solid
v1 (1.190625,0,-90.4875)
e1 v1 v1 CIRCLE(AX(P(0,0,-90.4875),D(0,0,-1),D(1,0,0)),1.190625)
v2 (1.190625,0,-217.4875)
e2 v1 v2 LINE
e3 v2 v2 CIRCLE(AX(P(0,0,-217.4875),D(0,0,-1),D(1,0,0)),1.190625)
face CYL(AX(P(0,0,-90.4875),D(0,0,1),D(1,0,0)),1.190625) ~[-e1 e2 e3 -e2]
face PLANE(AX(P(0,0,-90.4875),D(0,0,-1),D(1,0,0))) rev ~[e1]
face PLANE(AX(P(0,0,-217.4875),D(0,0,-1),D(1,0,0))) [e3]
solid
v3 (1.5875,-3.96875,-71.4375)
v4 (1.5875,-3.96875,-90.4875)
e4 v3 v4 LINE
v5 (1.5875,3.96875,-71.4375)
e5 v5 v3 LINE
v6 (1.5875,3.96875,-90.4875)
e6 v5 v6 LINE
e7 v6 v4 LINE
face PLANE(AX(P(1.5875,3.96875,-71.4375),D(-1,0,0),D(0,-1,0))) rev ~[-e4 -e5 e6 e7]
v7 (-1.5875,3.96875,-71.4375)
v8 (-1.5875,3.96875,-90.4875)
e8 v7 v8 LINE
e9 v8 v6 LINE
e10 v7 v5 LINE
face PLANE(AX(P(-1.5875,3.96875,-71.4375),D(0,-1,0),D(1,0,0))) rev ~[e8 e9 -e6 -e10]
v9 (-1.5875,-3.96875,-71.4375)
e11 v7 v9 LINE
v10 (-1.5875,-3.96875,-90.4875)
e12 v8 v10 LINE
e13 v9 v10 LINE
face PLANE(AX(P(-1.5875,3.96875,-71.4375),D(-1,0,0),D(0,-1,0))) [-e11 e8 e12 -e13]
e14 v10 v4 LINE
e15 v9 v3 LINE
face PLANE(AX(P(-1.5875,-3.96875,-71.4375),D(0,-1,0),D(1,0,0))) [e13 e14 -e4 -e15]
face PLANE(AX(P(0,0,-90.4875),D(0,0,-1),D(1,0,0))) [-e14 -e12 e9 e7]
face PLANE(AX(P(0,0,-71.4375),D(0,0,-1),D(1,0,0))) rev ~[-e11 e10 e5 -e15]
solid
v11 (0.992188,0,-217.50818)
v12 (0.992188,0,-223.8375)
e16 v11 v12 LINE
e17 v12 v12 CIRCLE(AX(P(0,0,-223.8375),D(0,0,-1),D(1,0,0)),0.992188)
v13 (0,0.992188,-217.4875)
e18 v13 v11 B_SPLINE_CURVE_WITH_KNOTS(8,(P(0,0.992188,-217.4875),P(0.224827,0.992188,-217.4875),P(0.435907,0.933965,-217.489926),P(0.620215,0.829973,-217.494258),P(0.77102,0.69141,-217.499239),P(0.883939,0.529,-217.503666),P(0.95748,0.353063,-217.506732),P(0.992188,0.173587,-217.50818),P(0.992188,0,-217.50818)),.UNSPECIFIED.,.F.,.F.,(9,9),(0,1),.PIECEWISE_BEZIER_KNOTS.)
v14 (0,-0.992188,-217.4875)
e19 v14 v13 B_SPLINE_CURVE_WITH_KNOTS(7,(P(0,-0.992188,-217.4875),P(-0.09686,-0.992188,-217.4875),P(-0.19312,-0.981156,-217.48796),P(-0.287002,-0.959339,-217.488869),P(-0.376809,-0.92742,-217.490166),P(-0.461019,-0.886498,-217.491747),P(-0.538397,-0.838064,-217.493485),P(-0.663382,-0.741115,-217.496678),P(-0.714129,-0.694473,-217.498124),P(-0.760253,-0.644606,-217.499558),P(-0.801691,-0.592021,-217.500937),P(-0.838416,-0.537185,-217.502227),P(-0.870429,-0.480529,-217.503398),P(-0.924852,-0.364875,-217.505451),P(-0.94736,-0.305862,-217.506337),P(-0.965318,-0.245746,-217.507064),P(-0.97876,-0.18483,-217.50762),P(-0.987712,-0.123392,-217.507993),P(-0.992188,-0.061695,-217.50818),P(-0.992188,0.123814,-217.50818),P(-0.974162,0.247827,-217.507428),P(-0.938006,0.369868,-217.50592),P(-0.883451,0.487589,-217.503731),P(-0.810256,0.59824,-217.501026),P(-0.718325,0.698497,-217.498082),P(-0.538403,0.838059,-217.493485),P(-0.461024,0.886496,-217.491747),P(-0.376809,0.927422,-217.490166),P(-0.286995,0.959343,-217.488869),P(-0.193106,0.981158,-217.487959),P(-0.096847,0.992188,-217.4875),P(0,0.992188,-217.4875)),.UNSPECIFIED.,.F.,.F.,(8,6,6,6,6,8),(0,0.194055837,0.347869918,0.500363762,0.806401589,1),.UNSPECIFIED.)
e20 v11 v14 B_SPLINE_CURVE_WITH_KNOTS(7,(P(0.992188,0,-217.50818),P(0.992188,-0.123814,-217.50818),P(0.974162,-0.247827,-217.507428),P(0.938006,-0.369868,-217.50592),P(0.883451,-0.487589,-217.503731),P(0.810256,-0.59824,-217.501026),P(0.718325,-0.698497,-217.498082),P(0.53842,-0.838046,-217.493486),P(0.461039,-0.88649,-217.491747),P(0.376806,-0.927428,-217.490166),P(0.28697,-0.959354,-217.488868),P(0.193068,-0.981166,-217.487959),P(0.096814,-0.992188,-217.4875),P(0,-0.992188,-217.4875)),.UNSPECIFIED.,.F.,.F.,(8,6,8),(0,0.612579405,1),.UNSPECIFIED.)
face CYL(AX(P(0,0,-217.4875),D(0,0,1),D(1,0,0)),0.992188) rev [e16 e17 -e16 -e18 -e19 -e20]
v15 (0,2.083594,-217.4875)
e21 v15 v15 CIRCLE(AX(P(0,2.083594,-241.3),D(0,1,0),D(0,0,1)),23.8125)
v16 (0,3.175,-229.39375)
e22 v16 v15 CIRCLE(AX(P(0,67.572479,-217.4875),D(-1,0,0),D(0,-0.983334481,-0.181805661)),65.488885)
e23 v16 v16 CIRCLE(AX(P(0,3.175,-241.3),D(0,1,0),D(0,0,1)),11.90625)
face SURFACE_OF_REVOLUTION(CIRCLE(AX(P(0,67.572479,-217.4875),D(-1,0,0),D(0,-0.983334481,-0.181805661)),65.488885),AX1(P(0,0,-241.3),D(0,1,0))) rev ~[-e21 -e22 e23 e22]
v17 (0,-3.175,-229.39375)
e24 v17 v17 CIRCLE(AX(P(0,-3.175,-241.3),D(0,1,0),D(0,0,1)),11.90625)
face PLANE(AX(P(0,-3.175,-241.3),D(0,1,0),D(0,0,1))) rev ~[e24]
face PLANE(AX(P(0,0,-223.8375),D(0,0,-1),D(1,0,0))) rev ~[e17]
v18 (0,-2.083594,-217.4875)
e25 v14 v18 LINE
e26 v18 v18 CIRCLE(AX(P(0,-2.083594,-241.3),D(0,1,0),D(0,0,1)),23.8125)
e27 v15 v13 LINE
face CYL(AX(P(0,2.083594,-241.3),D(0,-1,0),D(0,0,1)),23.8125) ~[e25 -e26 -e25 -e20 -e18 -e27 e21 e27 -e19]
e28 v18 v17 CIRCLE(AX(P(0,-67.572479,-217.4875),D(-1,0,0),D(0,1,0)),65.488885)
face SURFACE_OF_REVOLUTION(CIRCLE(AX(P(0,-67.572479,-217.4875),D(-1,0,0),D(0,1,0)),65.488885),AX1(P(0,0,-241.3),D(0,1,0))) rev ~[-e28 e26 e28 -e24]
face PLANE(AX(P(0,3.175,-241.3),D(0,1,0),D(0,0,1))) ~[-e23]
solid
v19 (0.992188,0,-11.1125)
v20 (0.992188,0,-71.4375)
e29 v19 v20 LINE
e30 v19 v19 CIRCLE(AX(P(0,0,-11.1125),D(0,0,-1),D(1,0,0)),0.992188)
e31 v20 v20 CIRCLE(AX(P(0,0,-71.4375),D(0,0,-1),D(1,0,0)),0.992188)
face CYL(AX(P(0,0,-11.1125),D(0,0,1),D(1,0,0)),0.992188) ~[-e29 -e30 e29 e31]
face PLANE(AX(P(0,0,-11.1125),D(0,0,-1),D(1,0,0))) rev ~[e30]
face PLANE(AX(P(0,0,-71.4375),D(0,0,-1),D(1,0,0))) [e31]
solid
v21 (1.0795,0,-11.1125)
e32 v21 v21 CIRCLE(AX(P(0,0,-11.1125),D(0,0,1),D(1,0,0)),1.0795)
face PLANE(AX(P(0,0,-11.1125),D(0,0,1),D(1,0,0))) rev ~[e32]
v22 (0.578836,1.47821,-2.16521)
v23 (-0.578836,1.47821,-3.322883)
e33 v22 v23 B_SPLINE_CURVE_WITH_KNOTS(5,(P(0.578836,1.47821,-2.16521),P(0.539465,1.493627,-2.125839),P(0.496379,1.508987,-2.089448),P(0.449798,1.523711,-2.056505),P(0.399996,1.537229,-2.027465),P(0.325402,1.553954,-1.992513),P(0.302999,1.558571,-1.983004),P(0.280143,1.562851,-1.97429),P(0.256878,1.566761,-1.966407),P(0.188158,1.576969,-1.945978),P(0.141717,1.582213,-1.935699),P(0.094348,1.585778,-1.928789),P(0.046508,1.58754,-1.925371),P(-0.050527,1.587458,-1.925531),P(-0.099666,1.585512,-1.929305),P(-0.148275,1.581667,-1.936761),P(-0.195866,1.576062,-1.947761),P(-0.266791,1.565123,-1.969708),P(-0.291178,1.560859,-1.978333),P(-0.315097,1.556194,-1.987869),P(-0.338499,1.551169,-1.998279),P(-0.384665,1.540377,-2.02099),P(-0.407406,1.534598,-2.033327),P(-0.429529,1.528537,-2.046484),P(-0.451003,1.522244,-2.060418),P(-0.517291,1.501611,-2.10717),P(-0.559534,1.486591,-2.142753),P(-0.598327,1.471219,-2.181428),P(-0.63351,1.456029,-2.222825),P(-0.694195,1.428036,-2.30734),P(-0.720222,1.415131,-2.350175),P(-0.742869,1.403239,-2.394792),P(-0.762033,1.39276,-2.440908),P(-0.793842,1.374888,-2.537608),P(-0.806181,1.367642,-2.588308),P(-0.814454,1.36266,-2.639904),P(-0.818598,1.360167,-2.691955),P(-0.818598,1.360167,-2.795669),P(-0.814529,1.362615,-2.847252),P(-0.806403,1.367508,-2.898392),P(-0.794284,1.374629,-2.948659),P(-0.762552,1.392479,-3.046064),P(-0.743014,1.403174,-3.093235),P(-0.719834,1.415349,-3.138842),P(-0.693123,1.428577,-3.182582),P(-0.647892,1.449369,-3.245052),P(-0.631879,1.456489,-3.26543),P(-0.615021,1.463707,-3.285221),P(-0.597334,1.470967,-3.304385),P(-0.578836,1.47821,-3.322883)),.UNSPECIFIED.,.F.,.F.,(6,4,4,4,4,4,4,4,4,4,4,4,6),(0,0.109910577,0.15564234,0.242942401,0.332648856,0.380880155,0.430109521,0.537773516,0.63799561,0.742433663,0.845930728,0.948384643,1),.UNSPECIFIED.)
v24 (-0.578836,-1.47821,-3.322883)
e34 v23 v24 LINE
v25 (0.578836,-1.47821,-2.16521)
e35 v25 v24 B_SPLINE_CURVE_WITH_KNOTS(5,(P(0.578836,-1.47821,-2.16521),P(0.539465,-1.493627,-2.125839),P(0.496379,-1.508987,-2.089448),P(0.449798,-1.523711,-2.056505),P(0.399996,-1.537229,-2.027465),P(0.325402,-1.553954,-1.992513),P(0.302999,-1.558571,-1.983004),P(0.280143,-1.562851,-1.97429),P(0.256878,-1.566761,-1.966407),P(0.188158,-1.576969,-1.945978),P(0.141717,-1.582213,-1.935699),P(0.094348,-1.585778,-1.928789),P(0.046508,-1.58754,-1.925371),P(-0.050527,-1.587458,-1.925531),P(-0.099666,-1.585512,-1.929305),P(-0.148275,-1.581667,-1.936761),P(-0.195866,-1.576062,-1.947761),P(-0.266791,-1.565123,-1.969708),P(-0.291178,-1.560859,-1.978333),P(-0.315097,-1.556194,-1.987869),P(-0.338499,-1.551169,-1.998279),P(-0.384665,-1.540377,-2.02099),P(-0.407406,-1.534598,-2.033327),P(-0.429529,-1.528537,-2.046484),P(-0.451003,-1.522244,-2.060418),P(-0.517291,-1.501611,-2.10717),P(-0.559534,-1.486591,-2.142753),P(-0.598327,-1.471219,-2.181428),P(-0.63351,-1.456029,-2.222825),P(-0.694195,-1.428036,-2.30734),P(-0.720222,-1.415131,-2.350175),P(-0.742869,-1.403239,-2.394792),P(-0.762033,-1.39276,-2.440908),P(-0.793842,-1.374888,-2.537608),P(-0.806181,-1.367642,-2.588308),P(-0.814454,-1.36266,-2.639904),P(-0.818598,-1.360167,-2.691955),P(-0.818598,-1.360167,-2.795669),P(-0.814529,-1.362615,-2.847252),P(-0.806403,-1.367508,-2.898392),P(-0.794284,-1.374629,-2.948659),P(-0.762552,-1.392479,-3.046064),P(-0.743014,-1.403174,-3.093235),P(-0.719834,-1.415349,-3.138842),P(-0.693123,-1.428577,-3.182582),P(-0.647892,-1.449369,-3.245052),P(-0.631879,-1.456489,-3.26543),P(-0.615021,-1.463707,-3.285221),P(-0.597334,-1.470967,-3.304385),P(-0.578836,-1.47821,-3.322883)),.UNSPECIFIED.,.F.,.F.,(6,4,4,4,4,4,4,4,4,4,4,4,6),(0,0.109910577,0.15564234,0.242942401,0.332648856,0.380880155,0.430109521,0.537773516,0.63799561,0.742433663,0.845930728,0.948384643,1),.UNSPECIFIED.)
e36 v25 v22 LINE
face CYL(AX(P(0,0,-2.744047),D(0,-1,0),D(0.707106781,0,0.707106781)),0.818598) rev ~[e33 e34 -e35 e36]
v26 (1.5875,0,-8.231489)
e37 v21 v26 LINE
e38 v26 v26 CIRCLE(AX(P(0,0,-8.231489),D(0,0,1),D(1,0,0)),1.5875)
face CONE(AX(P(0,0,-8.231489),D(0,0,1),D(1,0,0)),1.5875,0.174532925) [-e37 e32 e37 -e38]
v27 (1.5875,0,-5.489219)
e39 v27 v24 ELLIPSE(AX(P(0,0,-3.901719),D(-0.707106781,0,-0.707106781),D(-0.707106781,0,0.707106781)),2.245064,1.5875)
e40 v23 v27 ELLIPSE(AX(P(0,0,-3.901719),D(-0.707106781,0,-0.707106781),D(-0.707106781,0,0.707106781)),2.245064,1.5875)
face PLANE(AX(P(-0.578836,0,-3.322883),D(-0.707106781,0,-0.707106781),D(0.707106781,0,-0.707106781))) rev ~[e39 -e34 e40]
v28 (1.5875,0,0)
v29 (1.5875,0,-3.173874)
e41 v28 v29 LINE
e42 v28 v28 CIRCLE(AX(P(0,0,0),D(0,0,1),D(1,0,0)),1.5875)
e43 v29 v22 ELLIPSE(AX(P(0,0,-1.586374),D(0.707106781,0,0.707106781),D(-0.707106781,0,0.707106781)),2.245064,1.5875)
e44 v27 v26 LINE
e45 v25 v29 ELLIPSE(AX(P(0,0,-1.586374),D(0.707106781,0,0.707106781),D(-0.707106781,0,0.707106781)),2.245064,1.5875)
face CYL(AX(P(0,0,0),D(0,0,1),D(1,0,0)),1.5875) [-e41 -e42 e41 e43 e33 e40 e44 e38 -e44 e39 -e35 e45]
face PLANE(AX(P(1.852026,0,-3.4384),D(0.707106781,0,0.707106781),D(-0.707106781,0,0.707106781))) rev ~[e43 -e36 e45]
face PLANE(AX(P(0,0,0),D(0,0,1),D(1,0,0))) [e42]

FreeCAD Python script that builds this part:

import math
import FreeCAD as App
import Part
import Sketcher
Q = App.Units.Quantity


def edges_at(feature, points):
    """Names of the edges that pass closest to the given points."""
    edges = feature.Shape.Edges
    near = lambda p: min(range(len(edges)), key=lambda i: edges[i].distToShape(Part.Vertex(*p))[0])
    return sorted({f"Edge{near(p) + 1}" for p in points})


def add_polygon(sketch, points):
    """Adds a closed chain of lines whose ends are joined by coincident constraints."""
    first, n = sketch.GeometryCount, len(points)
    for a, b in zip(points, points[1:] + points[:1]):
        sketch.addGeometry(Part.LineSegment(App.Vector(*a, 0), App.Vector(*b, 0)), False)
    for i in range(n):
        sketch.addConstraint(Sketcher.Constraint("Coincident", first + i, 2, first + (i + 1) % n, 1))

doc = App.newDocument("Part")
params = doc.addObject("Spreadsheet::Sheet", "Params")
for row, (alias, value) in enumerate([
    ("sketch1_diameter", "0.125 in"),
    ("pad1_length", "0.4375 in"),
    ("chamfer_size", "0.02 in"),
    ("chamfer_size2", "2.881011 mm"),
    ("pocket1_length", "0.25 in"),
    ("sketch3_diameter", "0.078125 in"),
    ("pad2_length", "2.375 in"),
    ("sketch4_width", "0.125 in"),
    ("sketch4_height", "0.3125 in"),
    ("pad3_length", "0.75 in"),
    ("sketch5_diameter", "0.09375 in"),
    ("pad4_length", "5 in"),
    ("sketch6_width", "0.25 in"),
    ("sketch6_height", "0.46875 in"),
    ("revolution_angle", "360 deg"),
    ("sketch7_diameter", "0.078125 in"),
    ("pocket2_length", "0.25 in"),
], start=1):
    params.set(f"A{row}", alias)
    params.set(f"B{row}", "=" + value)
    params.setAlias(f"B{row}", alias)

body = doc.addObject("PartDesign::Body", "Body")

# Sketch on XY plane
sketch1 = body.newObject("Sketcher::SketchObject", "Sketch")
sketch1.AttachmentSupport = (doc.getObject("XY_Plane"), [""])
sketch1.MapMode = "FlatFace"
sketch1.addGeometry(Part.Circle(App.Vector(0, 0, 0), App.Vector(0, 0, 1), 1.6), False)
sketch1.addConstraint([
    Sketcher.Constraint("Coincident", 0, 3, -1, 1),
    Sketcher.Constraint("Diameter", 0, Q("0.125 in")),
])
sketch1.setExpression("Constraints[1]", "Params.sketch1_diameter")
pad1 = body.newObject("PartDesign::Pad", "Pad")
pad1.Profile = sketch1
pad1.setExpression("Length", "Params.pad1_length")
pad1.Reversed = True
doc.recompute()

chamfer = body.newObject("PartDesign::Chamfer", "Chamfer")
chamfer.Base = (pad1, edges_at(pad1, [(-1.587, 0, -11.113)]))
chamfer.ChamferType = "Two distances"
chamfer.setExpression("Size", "Params.chamfer_size")
chamfer.setExpression("Size2", "Params.chamfer_size2")
chamfer.FlipDirection = True

# Sketch on XZ plane
sketch2 = body.newObject("Sketcher::SketchObject", "Sketch001")
sketch2.AttachmentSupport = (doc.getObject("XZ_Plane"), [""])
sketch2.MapMode = "FlatFace"
sketch2.addGeometry([
    Part.ArcOfCircle(Part.Circle(App.Vector(0, -2.7, 0), App.Vector(0, 0, 1), 0.8), math.radians(45), math.radians(225)),
    Part.LineSegment(App.Vector(-0.6, -3.3, 0), App.Vector(1.9, -5.8, 0)),
    Part.LineSegment(App.Vector(1.9, -5.8, 0), App.Vector(1.9, -3.4, 0)),
    Part.LineSegment(App.Vector(1.9, -3.4, 0), App.Vector(0.6, -2.2, 0)),
], False)
sketch2.addConstraint([
    Sketcher.Constraint("Tangent", 0, 2, 1, 1),
    Sketcher.Constraint("Coincident", 1, 2, 2, 1),
    Sketcher.Constraint("Coincident", 2, 2, 3, 1),
    Sketcher.Constraint("Tangent", 3, 2, 0, 1),
    Sketcher.Constraint("Vertical", 2),
    Sketcher.Constraint("PointOnObject", 0, 3, -2),
    Sketcher.Constraint("Parallel", 1, 3),
    Sketcher.Constraint("Angle", 1, Q("-45 deg")),
    Sketcher.Constraint("Radius", 0, Q("0.818598 mm")),
    Sketcher.Constraint("DistanceY", 2, 2, -1, 1, Q("3.4384 mm")),
    Sketcher.Constraint("DistanceY", 1, 2, 0, 3, Q("3.009699 mm")),
])
pocket1 = body.newObject("PartDesign::Pocket", "Pocket")
pocket1.Profile = sketch2
pocket1.setExpression("Length", "Params.pocket1_length")
pocket1.Midplane = True
body2 = doc.addObject("PartDesign::Body", "Body001")

# Sketch on XY plane
sketch3 = body2.newObject("Sketcher::SketchObject", "Sketch002")
sketch3.AttachmentSupport = (doc.getObject("XY_Plane001"), [""])
sketch3.MapMode = "FlatFace"
sketch3.AttachmentOffset = App.Placement(App.Vector(0, 0, -0.4375 * 25.4), App.Rotation())
sketch3.addGeometry(Part.Circle(App.Vector(0, 0, 0), App.Vector(0, 0, 1), 1), False)
sketch3.addConstraint([
    Sketcher.Constraint("Coincident", 0, 3, -1, 1),
    Sketcher.Constraint("Diameter", 0, Q("0.078125 in")),
])
sketch3.setExpression("Constraints[1]", "Params.sketch3_diameter")
pad2 = body2.newObject("PartDesign::Pad", "Pad001")
pad2.Profile = sketch3
pad2.setExpression("Length", "Params.pad2_length")
pad2.Reversed = True
body3 = doc.addObject("PartDesign::Body", "Body002")

# Sketch on XY plane
sketch4 = body3.newObject("Sketcher::SketchObject", "Sketch003")
sketch4.AttachmentSupport = (doc.getObject("XY_Plane002"), [""])
sketch4.MapMode = "FlatFace"
sketch4.AttachmentOffset = App.Placement(App.Vector(0, 0, -2.8125 * 25.4), App.Rotation())
add_polygon(sketch4, [(-1.6, -4), (-1.6, 4), (1.6, 4), (1.6, -4)])  # lines 0-3
sketch4.addConstraint([
    Sketcher.Constraint("Vertical", 0),
    Sketcher.Constraint("Horizontal", 1),
    Sketcher.Constraint("Vertical", 2),
    Sketcher.Constraint("Horizontal", 3),
    Sketcher.Constraint("Symmetric", 0, 2, 2, 2, -1, 1),
    Sketcher.Constraint("DistanceX", 1, 1, 1, 2, Q("0.125 in")),
    Sketcher.Constraint("DistanceY", 0, 1, 0, 2, Q("0.3125 in")),
])
sketch4.setExpression("Constraints[9]", "Params.sketch4_width")
sketch4.setExpression("Constraints[10]", "Params.sketch4_height")
pad3 = body3.newObject("PartDesign::Pad", "Pad002")
pad3.Profile = sketch4
pad3.setExpression("Length", "Params.pad3_length")
pad3.Reversed = True
body4 = doc.addObject("PartDesign::Body", "Body003")

# Sketch on XY plane
sketch5 = body4.newObject("Sketcher::SketchObject", "Sketch004")
sketch5.AttachmentSupport = (doc.getObject("XY_Plane003"), [""])
sketch5.MapMode = "FlatFace"
sketch5.AttachmentOffset = App.Placement(App.Vector(0, 0, -3.5625 * 25.4), App.Rotation())
sketch5.addGeometry(Part.Circle(App.Vector(0, 0, 0), App.Vector(0, 0, 1), 1.2), False)
sketch5.addConstraint([
    Sketcher.Constraint("Coincident", 0, 3, -1, 1),
    Sketcher.Constraint("Diameter", 0, Q("0.09375 in")),
])
sketch5.setExpression("Constraints[1]", "Params.sketch5_diameter")
pad4 = body4.newObject("PartDesign::Pad", "Pad003")
pad4.Profile = sketch5
pad4.setExpression("Length", "Params.pad4_length")
pad4.Reversed = True
body5 = doc.addObject("PartDesign::Body", "Body004")

# Sketch on YZ plane
sketch6 = body5.newObject("Sketcher::SketchObject", "Sketch005")
sketch6.AttachmentSupport = (doc.getObject("YZ_Plane004"), [""])
sketch6.MapMode = "FlatFace"
sketch6.addGeometry([
    Part.LineSegment(App.Vector(2.1, -217.5, 0), App.Vector(-2.1, -217.5, 0)),  # 0
    Part.ArcOfCircle(Part.Circle(App.Vector(-67.6, -217.5, 0), App.Vector(0, 0, 1), 65.5), math.radians(-10.47), math.radians(0)),  # 1
    Part.LineSegment(App.Vector(-3.2, -229.4, 0), App.Vector(-3.2, -241.3, 0)),  # 2
    Part.LineSegment(App.Vector(-3.2, -241.3, 0), App.Vector(3.2, -241.3, 0)),  # 3
    Part.LineSegment(App.Vector(3.2, -241.3, 0), App.Vector(3.2, -229.4, 0)),  # 4
    Part.ArcOfCircle(Part.Circle(App.Vector(67.6, -217.5, 0), App.Vector(0, 0, 1), 65.5), math.radians(180), math.radians(190.47)),  # 5
], False)
sketch6.addGeometry(Part.LineSegment(App.Vector(-67.6, -241.3, 0), App.Vector(67.6, -241.3, 0)), True)  # axis
sketch6.addConstraint([
    Sketcher.Constraint("Coincident", 0, 2, 1, 2),
    Sketcher.Constraint("Coincident", 1, 1, 2, 1),
    Sketcher.Constraint("Coincident", 2, 2, 3, 1),
    Sketcher.Constraint("Coincident", 3, 2, 4, 1),
    Sketcher.Constraint("Coincident", 4, 2, 5, 2),
    Sketcher.Constraint("Coincident", 5, 1, 0, 1),
    Sketcher.Constraint("Horizontal", 0),
    Sketcher.Constraint("Vertical", 2),
    Sketcher.Constraint("Horizontal", 3),
    Sketcher.Constraint("Vertical", 4),
    Sketcher.Constraint("Horizontal", 6),
    Sketcher.Constraint("Equal", 1, 5),
    Sketcher.Constraint("Symmetric", 1, 3, 5, 3, -2),
    Sketcher.Constraint("Horizontal", 5, 3, 0, 2),
    Sketcher.Constraint("Horizontal", 1, 1, 4, 2),
    Sketcher.Constraint("Horizontal", 3, 2, 6, 1),
    Sketcher.Constraint("Vertical", 1, 3, 6, 1),
    Sketcher.Constraint("Vertical", 5, 3, 6, 2),
    Sketcher.Constraint("DistanceX", 3, 1, 3, 2, Q("0.25 in")),
    Sketcher.Constraint("DistanceY", 2, 2, -1, 1, Q("9.5 in")),
    Sketcher.Constraint("DistanceY", 2, 2, 2, 1, Q("0.46875 in")),
    Sketcher.Constraint("DistanceY", 1, 3, -1, 1, Q("8.5625 in")),
    Sketcher.Constraint("Radius", 1, Q("65.488885 mm")),
])
sketch6.setExpression("Constraints[18]", "Params.sketch6_width")
sketch6.setExpression("Constraints[20]", "Params.sketch6_height")
revolution = body5.newObject("PartDesign::Revolution", "Revolution")
revolution.Profile = sketch6
revolution.ReferenceAxis = (sketch6, ["Axis0"])
revolution.setExpression("Angle", "Params.revolution_angle")

# Sketch on XY plane
sketch7 = body5.newObject("Sketcher::SketchObject", "Sketch006")
sketch7.AttachmentSupport = (doc.getObject("XY_Plane004"), [""])
sketch7.MapMode = "FlatFace"
sketch7.AttachmentOffset = App.Placement(App.Vector(0, 0, -8.5625 * 25.4), App.Rotation())
sketch7.addGeometry(Part.Circle(App.Vector(0, 0, 0), App.Vector(0, 0, 1), 1), False)
sketch7.addConstraint([
    Sketcher.Constraint("Coincident", 0, 3, -1, 1),
    Sketcher.Constraint("Diameter", 0, Q("0.078125 in")),
])
sketch7.setExpression("Constraints[1]", "Params.sketch7_diameter")
pocket2 = body5.newObject("PartDesign::Pocket", "Pocket001")
pocket2.Profile = sketch7
pocket2.setExpression("Length", "Params.pocket2_length")

doc.recompute()
